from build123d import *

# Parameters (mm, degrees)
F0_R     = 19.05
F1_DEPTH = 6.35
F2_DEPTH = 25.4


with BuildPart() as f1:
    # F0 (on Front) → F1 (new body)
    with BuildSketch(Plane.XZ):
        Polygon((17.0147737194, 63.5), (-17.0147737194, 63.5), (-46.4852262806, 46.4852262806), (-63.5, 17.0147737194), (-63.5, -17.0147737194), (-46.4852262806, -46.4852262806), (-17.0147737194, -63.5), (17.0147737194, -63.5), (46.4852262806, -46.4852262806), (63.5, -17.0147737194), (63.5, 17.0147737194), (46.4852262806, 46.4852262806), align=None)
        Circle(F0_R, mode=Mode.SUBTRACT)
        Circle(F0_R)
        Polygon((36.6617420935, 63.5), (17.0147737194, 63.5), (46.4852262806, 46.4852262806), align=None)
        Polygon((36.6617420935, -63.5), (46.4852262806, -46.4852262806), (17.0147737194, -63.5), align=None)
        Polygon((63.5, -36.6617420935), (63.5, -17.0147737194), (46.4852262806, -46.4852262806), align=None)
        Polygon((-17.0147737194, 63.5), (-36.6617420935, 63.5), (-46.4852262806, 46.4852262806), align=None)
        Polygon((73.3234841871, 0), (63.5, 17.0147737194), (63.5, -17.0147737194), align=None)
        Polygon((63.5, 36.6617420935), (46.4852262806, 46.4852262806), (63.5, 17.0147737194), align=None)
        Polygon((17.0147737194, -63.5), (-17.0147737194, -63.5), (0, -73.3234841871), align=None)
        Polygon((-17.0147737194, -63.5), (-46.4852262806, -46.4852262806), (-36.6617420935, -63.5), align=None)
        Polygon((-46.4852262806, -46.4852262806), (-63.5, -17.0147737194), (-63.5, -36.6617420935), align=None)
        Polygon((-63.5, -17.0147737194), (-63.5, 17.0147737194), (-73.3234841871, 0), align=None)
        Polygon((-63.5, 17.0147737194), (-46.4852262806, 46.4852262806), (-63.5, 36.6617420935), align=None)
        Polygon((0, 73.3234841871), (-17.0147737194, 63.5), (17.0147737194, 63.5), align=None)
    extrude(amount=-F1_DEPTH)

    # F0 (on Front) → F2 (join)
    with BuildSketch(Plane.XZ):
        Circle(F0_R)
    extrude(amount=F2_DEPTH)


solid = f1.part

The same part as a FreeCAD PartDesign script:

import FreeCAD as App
import Part
import Sketcher
Q = App.Units.Quantity


def add_polygon(sketch, points):
    """Adds a closed chain of lines whose ends are joined by coincident constraints."""
    first, n = sketch.GeometryCount, len(points)
    for a, b in zip(points, points[1:] + points[:1]):
        sketch.addGeometry(Part.LineSegment(App.Vector(*a, 0), App.Vector(*b, 0)), False)
    for i in range(n):
        sketch.addConstraint(Sketcher.Constraint("Coincident", first + i, 2, first + (i + 1) % n, 1))

doc = App.newDocument("Part")
body = doc.addObject("PartDesign::Body", "Body")

sketch1 = body.newObject("Sketcher::SketchObject", "Sketch")
sketch1.AttachmentSupport = (doc.getObject("XZ_Plane"), [""])
sketch1.MapMode = "FlatFace"
add_polygon(sketch1, [(-64, 17), (-73, 0), (-64, -17), (-64, -37), (-46, -46), (-37, -64), (-17, -64), (0, -73), (17, -64), (37, -64), (46, -46), (64, -37), (64, -17), (73, 0), (64, 17), (64, 37), (46, 46), (37, 64), (17, 64), (0, 73), (-17, 64), (-37, 64), (-46, 46), (-64, 37)])
sketch1.addConstraint(Sketcher.Constraint("Vertical", 2))
sketch1.addConstraint(Sketcher.Constraint("Horizontal", 5))
sketch1.addConstraint(Sketcher.Constraint("Horizontal", 8))
sketch1.addConstraint(Sketcher.Constraint("Vertical", 11))
sketch1.addConstraint(Sketcher.Constraint("Vertical", 14))
sketch1.addConstraint(Sketcher.Constraint("Horizontal", 17))
sketch1.addConstraint(Sketcher.Constraint("Horizontal", 20))
sketch1.addConstraint(Sketcher.Constraint("Vertical", 23))
sketch1.addConstraint(Sketcher.Constraint("Symmetric", 0, 2, 12, 2, -1, 1))
sketch1.addConstraint(Sketcher.Constraint("Symmetric", 1, 2, 13, 2, -1, 1))
sketch1.addConstraint(Sketcher.Constraint("Symmetric", 3, 2, 15, 2, -1, 1))
sketch1.addConstraint(Sketcher.Constraint("Symmetric", 4, 2, 16, 2, -1, 1))
sketch1.addConstraint(Sketcher.Constraint("Symmetric", 6, 2, 18, 2, -1, 1))
sketch1.addConstraint(Sketcher.Constraint("Symmetric", 7, 2, 19, 2, -1, 1))
sketch1.addConstraint(Sketcher.Constraint("Symmetric", 9, 2, 21, 2, -1, 1))
sketch1.addConstraint(Sketcher.Constraint("Symmetric", 10, 2, 22, 2, -1, 1))
sketch1.addConstraint(Sketcher.Constraint("Symmetric", 5, 2, 7, 2, -2))
sketch1.addConstraint(Sketcher.Constraint("Symmetric", 3, 2, 9, 2, -2))
sketch1.addConstraint(Sketcher.Constraint("Symmetric", 2, 2, 10, 2, -2))
sketch1.addConstraint(Sketcher.Constraint("PointOnObject", 0, 2, -1))
sketch1.addConstraint(Sketcher.Constraint("PointOnObject", 6, 2, -2))
sketch1.addConstraint(Sketcher.Constraint("Perpendicular", 0, 3))
sketch1.addConstraint(Sketcher.Constraint("Parallel", 1, 4))
sketch1.addConstraint(Sketcher.Constraint("Parallel", 3, 6))
sketch1.addConstraint(Sketcher.Constraint("Perpendicular", 4, 7))
sketch1.addConstraint(Sketcher.Constraint("Perpendicular", 6, 9))
sketch1.addConstraint(Sketcher.Constraint("Parallel", 9, 12))
sketch1.addConstraint(Sketcher.Constraint("Perpendicular", 12, 15))
sketch1.addConstraint(Sketcher.Constraint("Parallel", 15, 18))
sketch1.addConstraint(Sketcher.Constraint("Perpendicular", 18, 21))
sketch1.addConstraint(Sketcher.Constraint("Equal", 20, 2))
sketch1.addConstraint(Sketcher.Constraint("Equal", 1, 3))
sketch1.addConstraint(Sketcher.Constraint("Equal", 3, 4))
sketch1.addConstraint(Sketcher.Constraint("Equal", 4, 6))
sketch1.addConstraint(Sketcher.Constraint("Angle", 0, Q("-120 deg")))
sketch1.addConstraint(Sketcher.Constraint("DistanceX", 1, 2, -1, 1, Q("2.5 in")))
sketch1.addConstraint(Sketcher.Constraint("DistanceX", 5, 1, 5, 2, Q("19.646968 mm")))
pad1 = body.newObject("PartDesign::Pad", "Pad")
pad1.Profile = sketch1
pad1.Length = Q("0.25 in")
pad1.Reversed = True

sketch2 = body.newObject("Sketcher::SketchObject", "Sketch001")
sketch2.AttachmentSupport = (doc.getObject("XZ_Plane"), [""])
sketch2.MapMode = "FlatFace"
sketch2.addGeometry(Part.Circle(App.Vector(0, 0, 0), App.Vector(0, 0, 1), 19), False)
sketch2.addConstraint(Sketcher.Constraint("Coincident", 0, 3, -1, 1))
sketch2.addConstraint(Sketcher.Constraint("Diameter", 0, Q("1.5 in")))
pad2 = body.newObject("PartDesign::Pad", "Pad001")
pad2.Profile = sketch2
pad2.Length = Q("1 in")

doc.recompute()
